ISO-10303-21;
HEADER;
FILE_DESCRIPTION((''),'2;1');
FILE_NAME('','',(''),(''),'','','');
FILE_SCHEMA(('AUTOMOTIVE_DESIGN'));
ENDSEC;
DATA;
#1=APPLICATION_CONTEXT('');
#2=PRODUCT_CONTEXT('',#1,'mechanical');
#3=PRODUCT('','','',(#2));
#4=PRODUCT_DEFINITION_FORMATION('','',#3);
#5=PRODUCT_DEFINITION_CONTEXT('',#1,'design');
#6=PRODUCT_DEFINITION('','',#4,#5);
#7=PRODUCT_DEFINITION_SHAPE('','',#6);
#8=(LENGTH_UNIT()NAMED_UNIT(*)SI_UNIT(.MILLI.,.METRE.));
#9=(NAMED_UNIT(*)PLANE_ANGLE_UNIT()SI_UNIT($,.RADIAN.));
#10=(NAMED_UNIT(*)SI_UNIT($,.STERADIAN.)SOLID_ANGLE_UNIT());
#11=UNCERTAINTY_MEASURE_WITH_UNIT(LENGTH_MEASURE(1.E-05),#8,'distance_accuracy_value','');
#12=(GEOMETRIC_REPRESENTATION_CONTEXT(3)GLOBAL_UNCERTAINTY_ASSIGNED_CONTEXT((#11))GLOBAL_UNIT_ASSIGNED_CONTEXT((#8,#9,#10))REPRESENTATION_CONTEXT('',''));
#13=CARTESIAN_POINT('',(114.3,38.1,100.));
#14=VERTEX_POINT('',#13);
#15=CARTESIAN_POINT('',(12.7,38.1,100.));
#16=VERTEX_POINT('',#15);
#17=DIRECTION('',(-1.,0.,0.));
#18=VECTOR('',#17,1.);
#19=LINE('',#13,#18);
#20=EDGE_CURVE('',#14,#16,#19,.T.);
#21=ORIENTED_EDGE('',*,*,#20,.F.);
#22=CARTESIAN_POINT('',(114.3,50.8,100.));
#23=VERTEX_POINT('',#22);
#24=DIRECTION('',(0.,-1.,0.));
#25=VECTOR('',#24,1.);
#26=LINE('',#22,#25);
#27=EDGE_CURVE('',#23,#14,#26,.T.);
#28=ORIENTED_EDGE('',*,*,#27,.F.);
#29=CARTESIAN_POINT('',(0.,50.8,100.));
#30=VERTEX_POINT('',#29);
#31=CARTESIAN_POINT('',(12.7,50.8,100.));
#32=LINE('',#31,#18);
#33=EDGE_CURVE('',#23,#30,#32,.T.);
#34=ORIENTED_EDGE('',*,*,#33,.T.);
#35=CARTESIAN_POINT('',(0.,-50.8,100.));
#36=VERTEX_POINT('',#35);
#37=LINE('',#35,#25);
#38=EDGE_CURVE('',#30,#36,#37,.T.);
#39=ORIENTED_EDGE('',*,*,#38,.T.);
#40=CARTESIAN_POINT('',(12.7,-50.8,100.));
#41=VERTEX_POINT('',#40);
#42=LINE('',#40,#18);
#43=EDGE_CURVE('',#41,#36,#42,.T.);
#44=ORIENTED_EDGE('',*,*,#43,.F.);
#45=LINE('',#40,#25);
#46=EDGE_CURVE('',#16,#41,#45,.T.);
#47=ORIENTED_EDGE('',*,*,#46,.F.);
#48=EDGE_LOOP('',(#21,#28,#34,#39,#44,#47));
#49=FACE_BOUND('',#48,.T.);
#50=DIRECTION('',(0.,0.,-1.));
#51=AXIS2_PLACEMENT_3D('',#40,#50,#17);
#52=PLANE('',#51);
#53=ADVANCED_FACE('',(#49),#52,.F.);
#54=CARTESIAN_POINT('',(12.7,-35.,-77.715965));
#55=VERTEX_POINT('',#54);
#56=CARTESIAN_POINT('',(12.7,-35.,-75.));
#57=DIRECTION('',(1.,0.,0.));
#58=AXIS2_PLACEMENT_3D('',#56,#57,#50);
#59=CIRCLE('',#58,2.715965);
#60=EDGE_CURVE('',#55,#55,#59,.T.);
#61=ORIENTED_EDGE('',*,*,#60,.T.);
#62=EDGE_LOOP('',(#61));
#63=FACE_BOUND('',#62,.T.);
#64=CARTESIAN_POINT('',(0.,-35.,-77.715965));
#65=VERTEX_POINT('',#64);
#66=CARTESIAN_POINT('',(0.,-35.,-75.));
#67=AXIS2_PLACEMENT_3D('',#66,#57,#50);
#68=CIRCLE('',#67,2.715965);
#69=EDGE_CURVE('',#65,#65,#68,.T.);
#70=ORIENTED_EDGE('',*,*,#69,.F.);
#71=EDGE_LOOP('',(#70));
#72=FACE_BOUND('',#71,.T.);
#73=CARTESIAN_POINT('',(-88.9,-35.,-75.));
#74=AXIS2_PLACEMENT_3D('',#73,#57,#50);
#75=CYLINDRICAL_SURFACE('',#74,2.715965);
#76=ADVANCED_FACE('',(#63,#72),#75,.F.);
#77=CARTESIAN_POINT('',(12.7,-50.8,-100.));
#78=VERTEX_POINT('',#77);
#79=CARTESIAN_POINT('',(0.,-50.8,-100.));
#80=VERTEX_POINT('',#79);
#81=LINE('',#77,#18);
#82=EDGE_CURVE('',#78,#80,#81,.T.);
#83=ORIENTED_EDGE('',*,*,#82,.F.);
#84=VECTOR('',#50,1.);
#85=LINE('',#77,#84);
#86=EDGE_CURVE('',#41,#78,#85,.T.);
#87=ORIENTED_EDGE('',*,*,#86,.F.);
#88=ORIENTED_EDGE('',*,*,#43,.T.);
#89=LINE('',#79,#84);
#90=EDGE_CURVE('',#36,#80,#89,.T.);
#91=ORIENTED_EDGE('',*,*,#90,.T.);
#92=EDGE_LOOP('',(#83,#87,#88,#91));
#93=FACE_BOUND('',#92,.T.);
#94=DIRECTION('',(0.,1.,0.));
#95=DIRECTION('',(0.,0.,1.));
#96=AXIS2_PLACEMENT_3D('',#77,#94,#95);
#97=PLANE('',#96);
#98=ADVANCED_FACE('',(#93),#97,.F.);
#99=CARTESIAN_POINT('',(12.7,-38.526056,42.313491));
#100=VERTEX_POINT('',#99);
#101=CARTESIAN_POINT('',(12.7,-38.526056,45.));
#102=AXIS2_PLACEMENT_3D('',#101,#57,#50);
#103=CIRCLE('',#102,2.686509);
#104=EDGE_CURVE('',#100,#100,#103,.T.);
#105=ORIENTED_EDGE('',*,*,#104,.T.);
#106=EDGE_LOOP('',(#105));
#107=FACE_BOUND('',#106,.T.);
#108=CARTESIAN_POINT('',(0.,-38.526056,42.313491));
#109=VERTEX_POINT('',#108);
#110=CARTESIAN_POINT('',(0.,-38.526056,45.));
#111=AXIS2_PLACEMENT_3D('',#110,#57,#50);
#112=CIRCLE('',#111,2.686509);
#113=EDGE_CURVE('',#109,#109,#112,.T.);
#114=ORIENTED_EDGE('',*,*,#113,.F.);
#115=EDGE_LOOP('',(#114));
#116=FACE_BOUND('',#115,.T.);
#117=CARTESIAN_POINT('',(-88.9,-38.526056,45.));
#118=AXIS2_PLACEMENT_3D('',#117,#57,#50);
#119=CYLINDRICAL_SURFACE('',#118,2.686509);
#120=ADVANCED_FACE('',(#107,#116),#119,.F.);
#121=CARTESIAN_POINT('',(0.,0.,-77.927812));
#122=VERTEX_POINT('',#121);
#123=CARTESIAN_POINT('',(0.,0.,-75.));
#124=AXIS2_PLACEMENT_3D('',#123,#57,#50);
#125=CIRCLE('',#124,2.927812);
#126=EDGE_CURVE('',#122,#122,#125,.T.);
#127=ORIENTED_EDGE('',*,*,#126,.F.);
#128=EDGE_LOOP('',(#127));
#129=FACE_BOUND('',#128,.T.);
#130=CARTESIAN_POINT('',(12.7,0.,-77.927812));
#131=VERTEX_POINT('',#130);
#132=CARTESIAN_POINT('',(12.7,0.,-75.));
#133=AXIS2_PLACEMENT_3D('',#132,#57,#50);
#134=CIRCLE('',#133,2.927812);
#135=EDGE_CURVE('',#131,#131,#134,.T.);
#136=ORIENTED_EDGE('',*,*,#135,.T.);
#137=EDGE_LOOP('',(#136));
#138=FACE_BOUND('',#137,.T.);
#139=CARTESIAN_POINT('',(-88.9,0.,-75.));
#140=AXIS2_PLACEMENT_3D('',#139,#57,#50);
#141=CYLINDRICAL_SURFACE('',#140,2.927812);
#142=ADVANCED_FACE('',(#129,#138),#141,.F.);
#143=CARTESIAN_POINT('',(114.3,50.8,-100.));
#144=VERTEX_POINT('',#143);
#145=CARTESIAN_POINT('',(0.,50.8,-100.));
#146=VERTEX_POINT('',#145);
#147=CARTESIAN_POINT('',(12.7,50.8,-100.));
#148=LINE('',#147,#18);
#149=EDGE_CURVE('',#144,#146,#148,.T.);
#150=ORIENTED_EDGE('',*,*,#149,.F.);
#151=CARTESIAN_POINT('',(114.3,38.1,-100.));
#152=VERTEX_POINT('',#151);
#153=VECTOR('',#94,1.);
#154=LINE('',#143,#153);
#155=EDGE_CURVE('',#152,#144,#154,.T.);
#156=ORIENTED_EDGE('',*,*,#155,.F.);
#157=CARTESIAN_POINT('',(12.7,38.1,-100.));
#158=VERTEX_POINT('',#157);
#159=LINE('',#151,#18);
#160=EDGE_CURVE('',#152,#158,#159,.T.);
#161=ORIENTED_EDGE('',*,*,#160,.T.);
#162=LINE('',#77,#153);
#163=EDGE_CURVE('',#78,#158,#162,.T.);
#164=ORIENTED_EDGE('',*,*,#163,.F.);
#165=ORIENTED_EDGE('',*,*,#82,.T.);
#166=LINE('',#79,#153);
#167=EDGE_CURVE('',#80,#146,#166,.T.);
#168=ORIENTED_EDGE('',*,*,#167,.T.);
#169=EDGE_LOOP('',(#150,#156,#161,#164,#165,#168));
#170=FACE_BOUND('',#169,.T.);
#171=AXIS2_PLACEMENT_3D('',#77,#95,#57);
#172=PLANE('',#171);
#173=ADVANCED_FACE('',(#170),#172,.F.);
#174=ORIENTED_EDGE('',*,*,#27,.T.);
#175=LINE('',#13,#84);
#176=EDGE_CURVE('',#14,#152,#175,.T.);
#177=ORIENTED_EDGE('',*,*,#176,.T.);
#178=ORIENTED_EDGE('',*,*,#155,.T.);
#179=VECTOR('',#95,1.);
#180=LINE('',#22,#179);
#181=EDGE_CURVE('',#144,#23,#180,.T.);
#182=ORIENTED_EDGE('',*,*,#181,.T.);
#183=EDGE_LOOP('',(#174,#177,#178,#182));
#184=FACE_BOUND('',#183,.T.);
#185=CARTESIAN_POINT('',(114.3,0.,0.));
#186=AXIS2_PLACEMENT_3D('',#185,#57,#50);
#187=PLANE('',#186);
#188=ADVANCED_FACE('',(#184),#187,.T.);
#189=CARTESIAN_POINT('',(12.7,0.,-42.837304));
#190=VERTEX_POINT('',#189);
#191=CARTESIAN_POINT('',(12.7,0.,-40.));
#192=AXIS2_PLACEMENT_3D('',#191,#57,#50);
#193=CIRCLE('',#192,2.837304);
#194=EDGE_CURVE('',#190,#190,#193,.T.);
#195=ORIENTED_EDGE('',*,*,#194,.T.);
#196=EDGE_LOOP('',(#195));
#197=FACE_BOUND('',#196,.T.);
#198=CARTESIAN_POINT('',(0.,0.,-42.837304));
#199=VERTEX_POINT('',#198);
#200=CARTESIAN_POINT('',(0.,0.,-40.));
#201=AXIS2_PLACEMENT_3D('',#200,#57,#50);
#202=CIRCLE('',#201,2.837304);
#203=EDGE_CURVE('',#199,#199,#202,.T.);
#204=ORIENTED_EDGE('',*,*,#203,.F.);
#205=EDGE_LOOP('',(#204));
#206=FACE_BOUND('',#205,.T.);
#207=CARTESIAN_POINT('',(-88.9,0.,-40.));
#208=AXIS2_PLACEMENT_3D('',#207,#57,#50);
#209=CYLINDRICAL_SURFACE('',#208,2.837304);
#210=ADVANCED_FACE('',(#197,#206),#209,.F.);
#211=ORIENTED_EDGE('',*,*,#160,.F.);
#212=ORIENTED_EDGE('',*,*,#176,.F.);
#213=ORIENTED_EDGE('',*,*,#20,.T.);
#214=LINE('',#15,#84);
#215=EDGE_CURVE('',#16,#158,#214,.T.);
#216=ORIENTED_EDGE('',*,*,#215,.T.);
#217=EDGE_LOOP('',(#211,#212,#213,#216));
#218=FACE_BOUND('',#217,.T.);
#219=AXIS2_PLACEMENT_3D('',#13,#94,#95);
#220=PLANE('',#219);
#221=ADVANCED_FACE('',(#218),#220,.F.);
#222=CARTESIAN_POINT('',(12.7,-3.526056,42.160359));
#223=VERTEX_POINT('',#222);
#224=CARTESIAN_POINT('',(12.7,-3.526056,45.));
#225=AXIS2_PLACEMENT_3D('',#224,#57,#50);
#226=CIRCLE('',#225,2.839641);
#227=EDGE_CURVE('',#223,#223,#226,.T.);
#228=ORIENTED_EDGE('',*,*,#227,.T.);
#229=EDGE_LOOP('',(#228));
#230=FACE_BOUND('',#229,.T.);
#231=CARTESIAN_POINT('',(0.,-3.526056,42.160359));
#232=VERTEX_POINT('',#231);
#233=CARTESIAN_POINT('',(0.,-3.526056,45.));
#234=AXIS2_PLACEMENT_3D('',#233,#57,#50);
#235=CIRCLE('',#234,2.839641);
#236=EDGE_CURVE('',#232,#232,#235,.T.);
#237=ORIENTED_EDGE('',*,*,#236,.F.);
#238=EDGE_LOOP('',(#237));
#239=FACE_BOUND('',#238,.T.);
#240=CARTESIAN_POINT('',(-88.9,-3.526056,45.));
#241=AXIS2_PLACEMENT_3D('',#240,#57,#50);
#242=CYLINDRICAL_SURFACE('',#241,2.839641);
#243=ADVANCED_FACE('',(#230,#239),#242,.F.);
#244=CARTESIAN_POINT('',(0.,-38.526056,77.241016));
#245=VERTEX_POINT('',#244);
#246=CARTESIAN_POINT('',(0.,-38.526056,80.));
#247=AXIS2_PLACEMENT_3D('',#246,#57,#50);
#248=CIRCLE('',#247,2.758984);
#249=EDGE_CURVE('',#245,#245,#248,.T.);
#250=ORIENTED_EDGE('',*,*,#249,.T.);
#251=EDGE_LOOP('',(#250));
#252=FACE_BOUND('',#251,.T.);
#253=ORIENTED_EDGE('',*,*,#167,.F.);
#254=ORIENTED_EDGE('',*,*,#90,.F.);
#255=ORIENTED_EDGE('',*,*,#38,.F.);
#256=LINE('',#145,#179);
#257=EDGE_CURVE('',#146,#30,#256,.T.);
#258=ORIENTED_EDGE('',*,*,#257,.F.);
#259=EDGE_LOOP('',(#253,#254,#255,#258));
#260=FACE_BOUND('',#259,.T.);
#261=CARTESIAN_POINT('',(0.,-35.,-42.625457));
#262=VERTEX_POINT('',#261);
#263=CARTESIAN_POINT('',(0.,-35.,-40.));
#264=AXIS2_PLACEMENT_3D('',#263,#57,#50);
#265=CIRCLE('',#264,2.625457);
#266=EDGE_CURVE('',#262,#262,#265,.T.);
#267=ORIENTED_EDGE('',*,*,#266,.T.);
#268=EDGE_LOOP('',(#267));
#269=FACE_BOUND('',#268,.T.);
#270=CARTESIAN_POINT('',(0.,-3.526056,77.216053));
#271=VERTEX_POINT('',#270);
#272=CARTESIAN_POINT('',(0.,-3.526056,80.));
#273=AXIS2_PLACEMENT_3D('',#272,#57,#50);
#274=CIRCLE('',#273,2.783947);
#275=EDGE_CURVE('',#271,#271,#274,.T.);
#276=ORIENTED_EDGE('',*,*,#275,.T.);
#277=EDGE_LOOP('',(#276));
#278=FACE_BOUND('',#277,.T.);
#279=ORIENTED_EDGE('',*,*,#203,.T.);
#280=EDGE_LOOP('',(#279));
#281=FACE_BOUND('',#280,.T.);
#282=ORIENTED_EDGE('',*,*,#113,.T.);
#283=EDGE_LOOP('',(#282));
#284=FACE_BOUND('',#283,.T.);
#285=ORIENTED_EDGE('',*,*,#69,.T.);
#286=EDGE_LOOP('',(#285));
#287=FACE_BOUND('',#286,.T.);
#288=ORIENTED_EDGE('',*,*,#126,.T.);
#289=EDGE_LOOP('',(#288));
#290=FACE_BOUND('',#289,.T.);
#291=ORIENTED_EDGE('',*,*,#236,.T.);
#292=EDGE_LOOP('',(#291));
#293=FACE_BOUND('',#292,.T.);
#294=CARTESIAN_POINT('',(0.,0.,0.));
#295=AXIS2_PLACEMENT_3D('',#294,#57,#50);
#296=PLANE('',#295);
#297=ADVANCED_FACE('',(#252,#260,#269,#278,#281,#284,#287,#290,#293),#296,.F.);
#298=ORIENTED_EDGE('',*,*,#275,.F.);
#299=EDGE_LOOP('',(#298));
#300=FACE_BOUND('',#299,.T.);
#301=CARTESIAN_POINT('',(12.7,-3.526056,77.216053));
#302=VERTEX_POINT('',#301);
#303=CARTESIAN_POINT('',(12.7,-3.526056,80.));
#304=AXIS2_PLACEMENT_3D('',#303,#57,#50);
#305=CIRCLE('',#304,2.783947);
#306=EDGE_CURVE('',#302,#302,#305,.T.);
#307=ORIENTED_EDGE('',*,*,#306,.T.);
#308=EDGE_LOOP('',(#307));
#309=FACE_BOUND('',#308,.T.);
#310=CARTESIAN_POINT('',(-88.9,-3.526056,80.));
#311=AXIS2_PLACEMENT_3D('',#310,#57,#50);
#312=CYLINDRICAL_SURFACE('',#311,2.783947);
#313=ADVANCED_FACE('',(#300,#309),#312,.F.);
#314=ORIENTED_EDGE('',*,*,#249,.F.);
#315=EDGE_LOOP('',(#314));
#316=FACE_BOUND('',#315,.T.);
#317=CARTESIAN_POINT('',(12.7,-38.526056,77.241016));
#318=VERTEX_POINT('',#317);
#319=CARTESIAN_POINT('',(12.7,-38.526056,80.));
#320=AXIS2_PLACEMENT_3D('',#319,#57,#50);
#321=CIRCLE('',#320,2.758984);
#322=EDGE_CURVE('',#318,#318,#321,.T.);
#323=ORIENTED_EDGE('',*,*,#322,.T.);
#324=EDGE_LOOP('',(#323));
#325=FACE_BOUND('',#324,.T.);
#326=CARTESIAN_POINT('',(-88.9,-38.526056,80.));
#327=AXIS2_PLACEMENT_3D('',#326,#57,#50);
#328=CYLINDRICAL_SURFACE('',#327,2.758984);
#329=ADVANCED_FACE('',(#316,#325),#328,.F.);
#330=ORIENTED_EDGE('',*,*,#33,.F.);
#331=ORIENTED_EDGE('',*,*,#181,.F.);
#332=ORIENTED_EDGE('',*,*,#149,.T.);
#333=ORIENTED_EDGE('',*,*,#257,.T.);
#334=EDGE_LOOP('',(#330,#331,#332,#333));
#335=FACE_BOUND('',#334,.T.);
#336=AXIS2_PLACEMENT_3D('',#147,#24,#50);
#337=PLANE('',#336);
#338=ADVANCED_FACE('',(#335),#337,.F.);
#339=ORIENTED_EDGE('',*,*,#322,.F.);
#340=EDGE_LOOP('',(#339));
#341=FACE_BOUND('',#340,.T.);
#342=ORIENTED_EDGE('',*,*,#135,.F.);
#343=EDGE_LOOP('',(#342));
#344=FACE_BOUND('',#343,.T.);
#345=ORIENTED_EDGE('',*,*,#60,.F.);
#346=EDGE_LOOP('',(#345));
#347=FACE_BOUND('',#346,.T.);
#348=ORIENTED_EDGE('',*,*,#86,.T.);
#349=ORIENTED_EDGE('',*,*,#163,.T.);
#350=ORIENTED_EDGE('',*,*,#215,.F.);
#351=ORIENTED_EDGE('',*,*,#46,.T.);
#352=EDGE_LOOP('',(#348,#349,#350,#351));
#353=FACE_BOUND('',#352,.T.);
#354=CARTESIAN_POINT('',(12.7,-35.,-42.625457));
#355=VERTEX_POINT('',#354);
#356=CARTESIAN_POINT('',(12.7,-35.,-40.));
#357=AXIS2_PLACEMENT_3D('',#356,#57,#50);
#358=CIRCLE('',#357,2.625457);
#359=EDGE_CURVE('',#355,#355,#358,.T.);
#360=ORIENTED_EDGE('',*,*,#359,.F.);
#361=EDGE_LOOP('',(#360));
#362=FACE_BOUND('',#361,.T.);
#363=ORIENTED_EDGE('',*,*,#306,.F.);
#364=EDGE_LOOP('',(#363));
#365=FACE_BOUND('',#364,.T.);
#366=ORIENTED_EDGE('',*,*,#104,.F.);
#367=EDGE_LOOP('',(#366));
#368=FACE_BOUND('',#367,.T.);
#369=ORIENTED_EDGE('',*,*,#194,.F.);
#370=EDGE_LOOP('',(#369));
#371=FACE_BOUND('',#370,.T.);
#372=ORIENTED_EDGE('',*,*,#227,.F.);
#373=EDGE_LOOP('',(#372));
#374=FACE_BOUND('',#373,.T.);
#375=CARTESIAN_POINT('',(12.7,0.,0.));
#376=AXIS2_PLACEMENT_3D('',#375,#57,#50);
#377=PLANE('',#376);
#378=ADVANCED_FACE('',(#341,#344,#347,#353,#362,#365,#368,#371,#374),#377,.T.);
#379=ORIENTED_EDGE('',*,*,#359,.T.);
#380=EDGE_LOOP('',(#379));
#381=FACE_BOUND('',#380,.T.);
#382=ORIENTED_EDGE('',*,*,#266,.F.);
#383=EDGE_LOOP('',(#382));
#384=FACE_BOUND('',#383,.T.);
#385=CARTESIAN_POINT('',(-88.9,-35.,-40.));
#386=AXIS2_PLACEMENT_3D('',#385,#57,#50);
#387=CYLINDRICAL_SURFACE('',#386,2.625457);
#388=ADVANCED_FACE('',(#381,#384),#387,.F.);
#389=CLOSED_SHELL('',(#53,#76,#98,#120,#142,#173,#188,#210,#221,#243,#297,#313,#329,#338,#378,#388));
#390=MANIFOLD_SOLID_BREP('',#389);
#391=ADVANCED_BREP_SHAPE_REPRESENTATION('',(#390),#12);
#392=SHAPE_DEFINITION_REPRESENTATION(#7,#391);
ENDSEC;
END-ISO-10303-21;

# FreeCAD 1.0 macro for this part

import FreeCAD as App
import Part
import Sketcher

V = App.Vector
Q = App.Units.Quantity


def add_polygon(sketch, points):
    """Adds a closed chain of lines whose ends are joined by coincident constraints."""
    first, n = sketch.GeometryCount, len(points)
    for a, b in zip(points, points[1:] + points[:1]):
        sketch.addGeometry(Part.LineSegment(App.Vector(*a, 0), App.Vector(*b, 0)), False)
    for i in range(n):
        sketch.addConstraint(Sketcher.Constraint("Coincident", first + i, 2, first + (i + 1) % n, 1))

doc = App.newDocument("Part")
params = doc.addObject("Spreadsheet::Sheet", "Params")
for row, (alias, value) in enumerate([
    ("sketch1_width", "4 in"),
    ("pad1_length", "0.5 in"),
    ("sketch2_width", "0.5 in"),
    ("pad2_length", "4 in"),
    ("pocket1_length", "4 in"),
], start=1):
    params.set(f"A{row}", alias)
    params.set(f"B{row}", "=" + value)
    params.setAlias(f"B{row}", alias)

body = doc.addObject("PartDesign::Body", "Body")

# Sketch on YZ plane
sketch1 = body.newObject("Sketcher::SketchObject", "Sketch")
sketch1.AttachmentSupport = (doc.getObject("YZ_Plane"), [""])
sketch1.MapMode = "FlatFace"
add_polygon(sketch1, [(51, 100), (-51, 100), (-51, -100), (51, -100)])  # lines 0-3
sketch1.addConstraint(Sketcher.Constraint("Horizontal", 0))
sketch1.addConstraint(Sketcher.Constraint("Vertical", 1))
sketch1.addConstraint(Sketcher.Constraint("Horizontal", 2))
sketch1.addConstraint(Sketcher.Constraint("Vertical", 3))
sketch1.addConstraint(Sketcher.Constraint("Symmetric", 0, 2, 2, 2, -1, 1))
sketch1.addConstraint(Sketcher.Constraint("DistanceX", 0, 2, 0, 1, Q("4 in")))
sketch1.addConstraint(Sketcher.Constraint("DistanceY", 1, 2, 1, 1, Q("200 mm")))
sketch1.setExpression("Constraints[9]", "Params.sketch1_width")
pad1 = body.newObject("PartDesign::Pad", "Pad")
pad1.Profile = sketch1
pad1.setExpression("Length", "Params.pad1_length")

# Sketch on YZ plane
sketch2 = body.newObject("Sketcher::SketchObject", "Sketch001")
sketch2.AttachmentSupport = (doc.getObject("YZ_Plane"), [""])
sketch2.MapMode = "FlatFace"
sketch2.AttachmentOffset = App.Placement(V(0, 0, 0.5 * 25.4), App.Rotation())
add_polygon(sketch2, [(51, 100), (38, 100), (38, -100), (51, -100)])  # lines 0-3
sketch2.addConstraint(Sketcher.Constraint("Horizontal", 0))
sketch2.addConstraint(Sketcher.Constraint("Vertical", 1))
sketch2.addConstraint(Sketcher.Constraint("Horizontal", 2))
sketch2.addConstraint(Sketcher.Constraint("Vertical", 3))
sketch2.addConstraint(Sketcher.Constraint("DistanceX", 0, 2, 0, 1, Q("0.5 in")))
sketch2.addConstraint(Sketcher.Constraint("DistanceX", -1, 1, 2, 2, Q("2 in")))
sketch2.addConstraint(Sketcher.Constraint("DistanceY", 1, 2, 1, 1, Q("200 mm")))
sketch2.addConstraint(Sketcher.Constraint("DistanceY", -1, 1, 0, 2, Q("100 mm")))
sketch2.setExpression("Constraints[8]", "Params.sketch2_width")
pad2 = body.newObject("PartDesign::Pad", "Pad001")
pad2.Profile = sketch2
pad2.setExpression("Length", "Params.pad2_length")

# Sketch on YZ plane
sketch3 = body.newObject("Sketcher::SketchObject", "Sketch002")
sketch3.AttachmentSupport = (doc.getObject("YZ_Plane"), [""])
sketch3.MapMode = "FlatFace"
sketch3.AttachmentOffset = App.Placement(V(0, 0, 0.5 * 25.4), App.Rotation())
sketch3.addGeometry(Part.Circle(V(-3.5, 80, 0), V(0, 0, 1), 2.8), False)
sketch3.addGeometry(Part.Circle(V(-3.5, 45, 0), V(0, 0, 1), 2.8), False)
sketch3.addGeometry(Part.Circle(V(-38.5, 80, 0), V(0, 0, 1), 2.8), False)
sketch3.addGeometry(Part.Circle(V(-38.5, 45, 0), V(0, 0, 1), 2.7), False)
sketch3.addGeometry(Part.Circle(V(0, -40, 0), V(0, 0, 1), 2.8), False)
sketch3.addGeometry(Part.Circle(V(0, -75, 0), V(0, 0, 1), 2.9), False)
sketch3.addGeometry(Part.Circle(V(-35, -40, 0), V(0, 0, 1), 2.6), False)
sketch3.addGeometry(Part.Circle(V(-35, -75, 0), V(0, 0, 1), 2.7), False)
sketch3.addConstraint(Sketcher.Constraint("PointOnObject", 4, 3, -2))
sketch3.addConstraint(Sketcher.Constraint("PointOnObject", 5, 3, -2))
sketch3.addConstraint(Sketcher.Constraint("Horizontal", 0, 3, 2, 3))
sketch3.addConstraint(Sketcher.Constraint("Horizontal", 1, 3, 3, 3))
sketch3.addConstraint(Sketcher.Constraint("Horizontal", 4, 3, 6, 3))
sketch3.addConstraint(Sketcher.Constraint("Horizontal", 5, 3, 7, 3))
sketch3.addConstraint(Sketcher.Constraint("Vertical", 0, 3, 1, 3))
sketch3.addConstraint(Sketcher.Constraint("Vertical", 2, 3, 3, 3))
sketch3.addConstraint(Sketcher.Constraint("Vertical", 6, 3, 7, 3))
sketch3.addConstraint(Sketcher.Constraint("Diameter", 2, Q("5.517968 mm")))
sketch3.addConstraint(Sketcher.Constraint("Diameter", 4, Q("5.674609 mm")))
sketch3.addConstraint(Sketcher.Constraint("Diameter", 7, Q("5.43193 mm")))
sketch3.addConstraint(Sketcher.Constraint("Diameter", 0, Q("5.567894 mm")))
sketch3.addConstraint(Sketcher.Constraint("Diameter", 1, Q("5.679282 mm")))
sketch3.addConstraint(Sketcher.Constraint("Diameter", 3, Q("5.373018 mm")))
sketch3.addConstraint(Sketcher.Constraint("Diameter", 5, Q("5.855624 mm")))
sketch3.addConstraint(Sketcher.Constraint("Diameter", 6, Q("5.250915 mm")))
sketch3.addConstraint(Sketcher.Constraint("DistanceY", -1, 1, 0, 3, Q("80 mm")))
sketch3.addConstraint(Sketcher.Constraint("DistanceY", -1, 1, 1, 3, Q("45 mm")))
sketch3.addConstraint(Sketcher.Constraint("DistanceY", 4, 3, -1, 1, Q("40 mm")))
sketch3.addConstraint(Sketcher.Constraint("DistanceY", 5, 3, -1, 1, Q("75 mm")))
sketch3.addConstraint(Sketcher.Constraint("DistanceX", 6, 3, -1, 1, Q("35 mm")))
sketch3.addConstraint(Sketcher.Constraint("DistanceX", 2, 3, 0, 3, Q("35 mm")))
sketch3.addConstraint(Sketcher.Constraint("DistanceX", 0, 3, -1, 1, Q("3.526056 mm")))
pocket1 = body.newObject("PartDesign::Pocket", "Pocket")
pocket1.Profile = sketch3
pocket1.setExpression("Length", "Params.pocket1_length")

doc.recompute()
